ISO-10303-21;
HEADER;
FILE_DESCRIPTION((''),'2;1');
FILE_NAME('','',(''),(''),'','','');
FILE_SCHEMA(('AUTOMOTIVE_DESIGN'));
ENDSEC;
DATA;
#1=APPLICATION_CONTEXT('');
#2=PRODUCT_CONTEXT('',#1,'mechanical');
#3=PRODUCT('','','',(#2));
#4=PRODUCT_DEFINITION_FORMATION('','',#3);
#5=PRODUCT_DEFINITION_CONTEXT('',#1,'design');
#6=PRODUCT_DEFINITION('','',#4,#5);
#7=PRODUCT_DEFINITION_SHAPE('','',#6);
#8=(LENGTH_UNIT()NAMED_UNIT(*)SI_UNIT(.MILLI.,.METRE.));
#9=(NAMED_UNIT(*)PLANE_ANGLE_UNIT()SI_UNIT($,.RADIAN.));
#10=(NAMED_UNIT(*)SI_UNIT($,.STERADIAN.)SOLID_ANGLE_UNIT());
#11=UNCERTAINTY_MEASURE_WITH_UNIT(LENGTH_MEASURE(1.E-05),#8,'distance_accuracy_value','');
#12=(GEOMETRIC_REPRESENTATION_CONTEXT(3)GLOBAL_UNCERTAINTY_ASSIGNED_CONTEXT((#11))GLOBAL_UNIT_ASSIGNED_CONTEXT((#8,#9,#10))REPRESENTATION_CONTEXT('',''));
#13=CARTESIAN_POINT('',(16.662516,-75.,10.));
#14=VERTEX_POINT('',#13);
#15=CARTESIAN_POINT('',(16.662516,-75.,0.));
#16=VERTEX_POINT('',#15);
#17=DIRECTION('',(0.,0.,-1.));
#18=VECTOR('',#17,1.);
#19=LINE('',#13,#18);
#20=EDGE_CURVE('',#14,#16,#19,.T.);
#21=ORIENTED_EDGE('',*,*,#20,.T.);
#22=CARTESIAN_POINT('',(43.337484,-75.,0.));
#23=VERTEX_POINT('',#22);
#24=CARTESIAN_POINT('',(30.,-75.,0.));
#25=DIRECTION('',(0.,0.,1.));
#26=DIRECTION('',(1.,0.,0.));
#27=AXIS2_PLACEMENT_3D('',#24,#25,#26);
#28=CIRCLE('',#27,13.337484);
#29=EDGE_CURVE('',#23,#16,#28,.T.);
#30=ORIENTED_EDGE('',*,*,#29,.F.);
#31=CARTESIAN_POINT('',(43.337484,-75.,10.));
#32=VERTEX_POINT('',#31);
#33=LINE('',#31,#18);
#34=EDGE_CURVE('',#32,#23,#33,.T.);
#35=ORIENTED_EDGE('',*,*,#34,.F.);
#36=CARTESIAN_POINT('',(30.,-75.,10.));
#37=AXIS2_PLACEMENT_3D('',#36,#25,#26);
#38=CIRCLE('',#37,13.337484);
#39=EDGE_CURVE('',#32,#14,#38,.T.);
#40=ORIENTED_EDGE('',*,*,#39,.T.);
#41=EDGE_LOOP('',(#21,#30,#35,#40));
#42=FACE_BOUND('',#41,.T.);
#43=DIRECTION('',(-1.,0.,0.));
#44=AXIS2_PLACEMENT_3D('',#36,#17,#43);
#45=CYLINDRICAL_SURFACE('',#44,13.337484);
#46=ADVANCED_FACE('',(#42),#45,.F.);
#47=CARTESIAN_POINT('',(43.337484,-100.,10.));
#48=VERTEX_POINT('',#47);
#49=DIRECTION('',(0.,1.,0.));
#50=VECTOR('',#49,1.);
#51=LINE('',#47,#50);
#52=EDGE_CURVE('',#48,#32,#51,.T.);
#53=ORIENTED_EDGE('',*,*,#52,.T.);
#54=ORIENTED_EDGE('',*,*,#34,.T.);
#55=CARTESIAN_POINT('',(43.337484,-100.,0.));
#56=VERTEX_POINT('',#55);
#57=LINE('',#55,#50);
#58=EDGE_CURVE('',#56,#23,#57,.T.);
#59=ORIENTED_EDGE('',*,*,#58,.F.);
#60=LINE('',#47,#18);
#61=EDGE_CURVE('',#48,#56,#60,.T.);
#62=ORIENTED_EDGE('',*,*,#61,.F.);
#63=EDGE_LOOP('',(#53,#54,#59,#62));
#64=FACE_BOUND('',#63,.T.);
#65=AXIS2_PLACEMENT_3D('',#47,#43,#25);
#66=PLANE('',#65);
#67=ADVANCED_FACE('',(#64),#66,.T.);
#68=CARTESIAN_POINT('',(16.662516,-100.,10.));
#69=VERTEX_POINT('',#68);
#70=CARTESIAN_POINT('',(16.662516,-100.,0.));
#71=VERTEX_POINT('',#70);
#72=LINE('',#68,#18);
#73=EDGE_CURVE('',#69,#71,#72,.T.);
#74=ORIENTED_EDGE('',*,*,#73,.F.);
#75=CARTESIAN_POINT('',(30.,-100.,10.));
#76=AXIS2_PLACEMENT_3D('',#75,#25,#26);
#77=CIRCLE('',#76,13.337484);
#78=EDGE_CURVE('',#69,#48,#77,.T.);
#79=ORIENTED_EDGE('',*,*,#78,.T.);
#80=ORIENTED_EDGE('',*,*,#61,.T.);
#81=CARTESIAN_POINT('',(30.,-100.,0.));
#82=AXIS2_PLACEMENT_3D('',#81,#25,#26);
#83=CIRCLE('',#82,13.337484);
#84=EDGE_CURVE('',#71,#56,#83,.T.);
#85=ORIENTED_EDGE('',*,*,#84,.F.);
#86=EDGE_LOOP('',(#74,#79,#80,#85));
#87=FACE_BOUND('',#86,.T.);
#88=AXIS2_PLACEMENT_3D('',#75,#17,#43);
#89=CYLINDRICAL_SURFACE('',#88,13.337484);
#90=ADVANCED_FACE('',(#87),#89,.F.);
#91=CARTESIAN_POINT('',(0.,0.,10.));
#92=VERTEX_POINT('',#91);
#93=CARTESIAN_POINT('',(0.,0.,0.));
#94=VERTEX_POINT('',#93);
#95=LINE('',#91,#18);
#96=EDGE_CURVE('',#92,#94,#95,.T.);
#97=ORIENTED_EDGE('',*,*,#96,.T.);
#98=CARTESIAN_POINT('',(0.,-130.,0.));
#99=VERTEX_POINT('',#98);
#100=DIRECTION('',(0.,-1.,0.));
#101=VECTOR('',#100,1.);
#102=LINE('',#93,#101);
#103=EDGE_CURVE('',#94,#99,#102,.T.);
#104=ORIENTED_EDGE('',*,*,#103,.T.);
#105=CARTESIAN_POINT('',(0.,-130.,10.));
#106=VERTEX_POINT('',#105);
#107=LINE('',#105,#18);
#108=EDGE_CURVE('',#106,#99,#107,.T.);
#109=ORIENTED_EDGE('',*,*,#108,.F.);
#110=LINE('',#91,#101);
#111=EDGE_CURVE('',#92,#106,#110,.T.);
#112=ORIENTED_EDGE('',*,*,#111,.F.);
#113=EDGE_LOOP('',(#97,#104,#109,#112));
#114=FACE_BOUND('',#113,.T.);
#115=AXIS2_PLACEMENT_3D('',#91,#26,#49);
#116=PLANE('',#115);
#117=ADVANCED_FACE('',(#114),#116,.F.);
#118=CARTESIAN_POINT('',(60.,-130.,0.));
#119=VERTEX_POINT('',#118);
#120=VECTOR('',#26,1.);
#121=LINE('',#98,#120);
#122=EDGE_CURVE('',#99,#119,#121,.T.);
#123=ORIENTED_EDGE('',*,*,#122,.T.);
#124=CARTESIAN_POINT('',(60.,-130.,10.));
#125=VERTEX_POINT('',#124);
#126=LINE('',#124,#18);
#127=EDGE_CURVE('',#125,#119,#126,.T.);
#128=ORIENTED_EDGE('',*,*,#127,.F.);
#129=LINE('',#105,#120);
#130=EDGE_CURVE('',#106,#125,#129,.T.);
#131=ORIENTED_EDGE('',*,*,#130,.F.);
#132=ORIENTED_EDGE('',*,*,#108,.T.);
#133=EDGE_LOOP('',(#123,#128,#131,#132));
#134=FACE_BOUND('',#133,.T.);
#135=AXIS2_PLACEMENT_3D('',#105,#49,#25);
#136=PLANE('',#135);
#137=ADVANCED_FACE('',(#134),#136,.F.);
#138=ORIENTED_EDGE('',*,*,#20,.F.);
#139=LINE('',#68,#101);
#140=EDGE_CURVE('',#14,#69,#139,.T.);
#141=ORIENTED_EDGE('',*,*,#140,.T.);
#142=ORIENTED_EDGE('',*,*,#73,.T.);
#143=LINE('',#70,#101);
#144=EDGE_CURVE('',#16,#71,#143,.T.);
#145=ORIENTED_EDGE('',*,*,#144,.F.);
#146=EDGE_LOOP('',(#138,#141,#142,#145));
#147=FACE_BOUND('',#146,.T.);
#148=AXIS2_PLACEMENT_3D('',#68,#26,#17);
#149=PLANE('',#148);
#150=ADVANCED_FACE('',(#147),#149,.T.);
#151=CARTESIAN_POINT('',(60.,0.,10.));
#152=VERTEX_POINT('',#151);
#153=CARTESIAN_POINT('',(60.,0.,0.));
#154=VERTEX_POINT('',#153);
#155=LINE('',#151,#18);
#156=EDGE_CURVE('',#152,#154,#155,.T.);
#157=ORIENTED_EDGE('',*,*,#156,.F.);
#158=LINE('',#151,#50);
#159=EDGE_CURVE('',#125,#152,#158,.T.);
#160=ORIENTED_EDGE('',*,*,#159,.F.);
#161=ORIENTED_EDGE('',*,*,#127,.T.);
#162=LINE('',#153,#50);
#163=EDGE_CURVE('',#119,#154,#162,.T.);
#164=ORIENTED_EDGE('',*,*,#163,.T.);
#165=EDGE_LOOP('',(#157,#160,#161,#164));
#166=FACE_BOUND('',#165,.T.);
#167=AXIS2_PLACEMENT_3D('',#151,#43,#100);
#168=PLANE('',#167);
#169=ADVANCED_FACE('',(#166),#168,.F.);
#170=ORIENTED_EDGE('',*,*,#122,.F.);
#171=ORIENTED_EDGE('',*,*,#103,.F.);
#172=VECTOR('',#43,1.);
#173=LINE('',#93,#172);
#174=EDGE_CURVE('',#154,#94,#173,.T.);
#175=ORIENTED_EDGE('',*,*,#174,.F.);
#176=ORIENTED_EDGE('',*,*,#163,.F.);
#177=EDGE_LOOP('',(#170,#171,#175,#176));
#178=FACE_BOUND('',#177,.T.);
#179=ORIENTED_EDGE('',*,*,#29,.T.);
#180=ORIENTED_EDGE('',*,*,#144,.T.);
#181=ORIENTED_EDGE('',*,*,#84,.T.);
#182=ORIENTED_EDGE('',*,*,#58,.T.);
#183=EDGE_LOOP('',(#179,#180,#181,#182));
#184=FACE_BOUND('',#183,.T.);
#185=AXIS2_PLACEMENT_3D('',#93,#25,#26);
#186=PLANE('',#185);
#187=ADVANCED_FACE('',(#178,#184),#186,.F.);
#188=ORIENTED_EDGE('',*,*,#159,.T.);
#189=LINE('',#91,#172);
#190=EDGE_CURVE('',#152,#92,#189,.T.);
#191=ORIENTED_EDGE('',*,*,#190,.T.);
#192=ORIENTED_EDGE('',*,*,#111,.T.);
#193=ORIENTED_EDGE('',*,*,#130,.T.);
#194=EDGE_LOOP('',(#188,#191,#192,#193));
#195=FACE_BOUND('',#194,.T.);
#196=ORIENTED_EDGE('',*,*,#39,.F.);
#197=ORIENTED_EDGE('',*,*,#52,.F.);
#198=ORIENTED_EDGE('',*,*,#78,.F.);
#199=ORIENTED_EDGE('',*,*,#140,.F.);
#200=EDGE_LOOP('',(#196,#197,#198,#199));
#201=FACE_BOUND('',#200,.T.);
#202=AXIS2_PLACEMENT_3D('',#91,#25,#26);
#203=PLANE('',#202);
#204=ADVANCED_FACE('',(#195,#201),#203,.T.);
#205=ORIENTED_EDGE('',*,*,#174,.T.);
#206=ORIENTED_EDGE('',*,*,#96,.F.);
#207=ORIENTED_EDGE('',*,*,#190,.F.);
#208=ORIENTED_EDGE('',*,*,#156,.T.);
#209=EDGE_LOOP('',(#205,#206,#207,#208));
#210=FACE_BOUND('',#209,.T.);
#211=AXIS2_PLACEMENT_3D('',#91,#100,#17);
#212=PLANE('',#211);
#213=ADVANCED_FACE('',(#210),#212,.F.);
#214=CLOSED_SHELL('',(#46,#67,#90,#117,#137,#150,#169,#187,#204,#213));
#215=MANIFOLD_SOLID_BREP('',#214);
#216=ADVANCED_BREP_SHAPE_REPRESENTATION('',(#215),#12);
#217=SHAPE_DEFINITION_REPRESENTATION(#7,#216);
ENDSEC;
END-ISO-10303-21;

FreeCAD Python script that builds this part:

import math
import FreeCAD as App
import Part
import Sketcher
Q = App.Units.Quantity


def add_polygon(sketch, points):
    """Adds a closed chain of lines whose ends are joined by coincident constraints."""
    first, n = sketch.GeometryCount, len(points)
    for a, b in zip(points, points[1:] + points[:1]):
        sketch.addGeometry(Part.LineSegment(App.Vector(*a, 0), App.Vector(*b, 0)), False)
    for i in range(n):
        sketch.addConstraint(Sketcher.Constraint("Coincident", first + i, 2, first + (i + 1) % n, 1))

doc = App.newDocument("Part")
body = doc.addObject("PartDesign::Body", "Body")

sketch1 = body.newObject("Sketcher::SketchObject", "Sketch")
sketch1.AttachmentSupport = (doc.getObject("XY_Plane"), [""])
sketch1.MapMode = "FlatFace"
add_polygon(sketch1, [(0, 0), (0, -130), (60, -130), (60, 0)])
sketch1.addGeometry(Part.ArcOfCircle(Part.Circle(App.Vector(30, -100, 0), App.Vector(0, 0, 1), 13), math.radians(180), math.radians(360)), False)
sketch1.addGeometry(Part.LineSegment(App.Vector(17, -100, 0), App.Vector(17, -75, 0)), False)
sketch1.addGeometry(Part.ArcOfCircle(Part.Circle(App.Vector(30, -75, 0), App.Vector(0, 0, 1), 13), math.radians(0), math.radians(180)), False)
sketch1.addGeometry(Part.LineSegment(App.Vector(43, -75, 0), App.Vector(43, -100, 0)), False)
sketch1.addConstraint(Sketcher.Constraint("Tangent", 4, 1, 5, 1))
sketch1.addConstraint(Sketcher.Constraint("Tangent", 5, 2, 6, 2))
sketch1.addConstraint(Sketcher.Constraint("Tangent", 6, 1, 7, 1))
sketch1.addConstraint(Sketcher.Constraint("Tangent", 7, 2, 4, 2))
sketch1.addConstraint(Sketcher.Constraint("Vertical", 0))
sketch1.addConstraint(Sketcher.Constraint("Horizontal", 1))
sketch1.addConstraint(Sketcher.Constraint("Vertical", 2))
sketch1.addConstraint(Sketcher.Constraint("Horizontal", 3))
sketch1.addConstraint(Sketcher.Constraint("Vertical", 5))
sketch1.addConstraint(Sketcher.Constraint("Vertical", 7))
sketch1.addConstraint(Sketcher.Constraint("Coincident", 3, 2, -1, 1))
sketch1.addConstraint(Sketcher.Constraint("DistanceX", 1, 1, 1, 2, Q("60 mm")))
sketch1.addConstraint(Sketcher.Constraint("DistanceY", 0, 2, 0, 1, Q("130 mm")))
sketch1.addConstraint(Sketcher.Constraint("DistanceY", 5, 1, 5, 2, Q("25 mm")))
sketch1.addConstraint(Sketcher.Constraint("DistanceX", -1, 1, 4, 3, Q("30 mm")))
sketch1.addConstraint(Sketcher.Constraint("DistanceY", 4, 3, -1, 1, Q("100 mm")))
sketch1.addConstraint(Sketcher.Constraint("Radius", 4, Q("13.337484 mm")))
pad1 = body.newObject("PartDesign::Pad", "Pad")
pad1.Profile = sketch1
pad1.Length = 10

doc.recompute()
